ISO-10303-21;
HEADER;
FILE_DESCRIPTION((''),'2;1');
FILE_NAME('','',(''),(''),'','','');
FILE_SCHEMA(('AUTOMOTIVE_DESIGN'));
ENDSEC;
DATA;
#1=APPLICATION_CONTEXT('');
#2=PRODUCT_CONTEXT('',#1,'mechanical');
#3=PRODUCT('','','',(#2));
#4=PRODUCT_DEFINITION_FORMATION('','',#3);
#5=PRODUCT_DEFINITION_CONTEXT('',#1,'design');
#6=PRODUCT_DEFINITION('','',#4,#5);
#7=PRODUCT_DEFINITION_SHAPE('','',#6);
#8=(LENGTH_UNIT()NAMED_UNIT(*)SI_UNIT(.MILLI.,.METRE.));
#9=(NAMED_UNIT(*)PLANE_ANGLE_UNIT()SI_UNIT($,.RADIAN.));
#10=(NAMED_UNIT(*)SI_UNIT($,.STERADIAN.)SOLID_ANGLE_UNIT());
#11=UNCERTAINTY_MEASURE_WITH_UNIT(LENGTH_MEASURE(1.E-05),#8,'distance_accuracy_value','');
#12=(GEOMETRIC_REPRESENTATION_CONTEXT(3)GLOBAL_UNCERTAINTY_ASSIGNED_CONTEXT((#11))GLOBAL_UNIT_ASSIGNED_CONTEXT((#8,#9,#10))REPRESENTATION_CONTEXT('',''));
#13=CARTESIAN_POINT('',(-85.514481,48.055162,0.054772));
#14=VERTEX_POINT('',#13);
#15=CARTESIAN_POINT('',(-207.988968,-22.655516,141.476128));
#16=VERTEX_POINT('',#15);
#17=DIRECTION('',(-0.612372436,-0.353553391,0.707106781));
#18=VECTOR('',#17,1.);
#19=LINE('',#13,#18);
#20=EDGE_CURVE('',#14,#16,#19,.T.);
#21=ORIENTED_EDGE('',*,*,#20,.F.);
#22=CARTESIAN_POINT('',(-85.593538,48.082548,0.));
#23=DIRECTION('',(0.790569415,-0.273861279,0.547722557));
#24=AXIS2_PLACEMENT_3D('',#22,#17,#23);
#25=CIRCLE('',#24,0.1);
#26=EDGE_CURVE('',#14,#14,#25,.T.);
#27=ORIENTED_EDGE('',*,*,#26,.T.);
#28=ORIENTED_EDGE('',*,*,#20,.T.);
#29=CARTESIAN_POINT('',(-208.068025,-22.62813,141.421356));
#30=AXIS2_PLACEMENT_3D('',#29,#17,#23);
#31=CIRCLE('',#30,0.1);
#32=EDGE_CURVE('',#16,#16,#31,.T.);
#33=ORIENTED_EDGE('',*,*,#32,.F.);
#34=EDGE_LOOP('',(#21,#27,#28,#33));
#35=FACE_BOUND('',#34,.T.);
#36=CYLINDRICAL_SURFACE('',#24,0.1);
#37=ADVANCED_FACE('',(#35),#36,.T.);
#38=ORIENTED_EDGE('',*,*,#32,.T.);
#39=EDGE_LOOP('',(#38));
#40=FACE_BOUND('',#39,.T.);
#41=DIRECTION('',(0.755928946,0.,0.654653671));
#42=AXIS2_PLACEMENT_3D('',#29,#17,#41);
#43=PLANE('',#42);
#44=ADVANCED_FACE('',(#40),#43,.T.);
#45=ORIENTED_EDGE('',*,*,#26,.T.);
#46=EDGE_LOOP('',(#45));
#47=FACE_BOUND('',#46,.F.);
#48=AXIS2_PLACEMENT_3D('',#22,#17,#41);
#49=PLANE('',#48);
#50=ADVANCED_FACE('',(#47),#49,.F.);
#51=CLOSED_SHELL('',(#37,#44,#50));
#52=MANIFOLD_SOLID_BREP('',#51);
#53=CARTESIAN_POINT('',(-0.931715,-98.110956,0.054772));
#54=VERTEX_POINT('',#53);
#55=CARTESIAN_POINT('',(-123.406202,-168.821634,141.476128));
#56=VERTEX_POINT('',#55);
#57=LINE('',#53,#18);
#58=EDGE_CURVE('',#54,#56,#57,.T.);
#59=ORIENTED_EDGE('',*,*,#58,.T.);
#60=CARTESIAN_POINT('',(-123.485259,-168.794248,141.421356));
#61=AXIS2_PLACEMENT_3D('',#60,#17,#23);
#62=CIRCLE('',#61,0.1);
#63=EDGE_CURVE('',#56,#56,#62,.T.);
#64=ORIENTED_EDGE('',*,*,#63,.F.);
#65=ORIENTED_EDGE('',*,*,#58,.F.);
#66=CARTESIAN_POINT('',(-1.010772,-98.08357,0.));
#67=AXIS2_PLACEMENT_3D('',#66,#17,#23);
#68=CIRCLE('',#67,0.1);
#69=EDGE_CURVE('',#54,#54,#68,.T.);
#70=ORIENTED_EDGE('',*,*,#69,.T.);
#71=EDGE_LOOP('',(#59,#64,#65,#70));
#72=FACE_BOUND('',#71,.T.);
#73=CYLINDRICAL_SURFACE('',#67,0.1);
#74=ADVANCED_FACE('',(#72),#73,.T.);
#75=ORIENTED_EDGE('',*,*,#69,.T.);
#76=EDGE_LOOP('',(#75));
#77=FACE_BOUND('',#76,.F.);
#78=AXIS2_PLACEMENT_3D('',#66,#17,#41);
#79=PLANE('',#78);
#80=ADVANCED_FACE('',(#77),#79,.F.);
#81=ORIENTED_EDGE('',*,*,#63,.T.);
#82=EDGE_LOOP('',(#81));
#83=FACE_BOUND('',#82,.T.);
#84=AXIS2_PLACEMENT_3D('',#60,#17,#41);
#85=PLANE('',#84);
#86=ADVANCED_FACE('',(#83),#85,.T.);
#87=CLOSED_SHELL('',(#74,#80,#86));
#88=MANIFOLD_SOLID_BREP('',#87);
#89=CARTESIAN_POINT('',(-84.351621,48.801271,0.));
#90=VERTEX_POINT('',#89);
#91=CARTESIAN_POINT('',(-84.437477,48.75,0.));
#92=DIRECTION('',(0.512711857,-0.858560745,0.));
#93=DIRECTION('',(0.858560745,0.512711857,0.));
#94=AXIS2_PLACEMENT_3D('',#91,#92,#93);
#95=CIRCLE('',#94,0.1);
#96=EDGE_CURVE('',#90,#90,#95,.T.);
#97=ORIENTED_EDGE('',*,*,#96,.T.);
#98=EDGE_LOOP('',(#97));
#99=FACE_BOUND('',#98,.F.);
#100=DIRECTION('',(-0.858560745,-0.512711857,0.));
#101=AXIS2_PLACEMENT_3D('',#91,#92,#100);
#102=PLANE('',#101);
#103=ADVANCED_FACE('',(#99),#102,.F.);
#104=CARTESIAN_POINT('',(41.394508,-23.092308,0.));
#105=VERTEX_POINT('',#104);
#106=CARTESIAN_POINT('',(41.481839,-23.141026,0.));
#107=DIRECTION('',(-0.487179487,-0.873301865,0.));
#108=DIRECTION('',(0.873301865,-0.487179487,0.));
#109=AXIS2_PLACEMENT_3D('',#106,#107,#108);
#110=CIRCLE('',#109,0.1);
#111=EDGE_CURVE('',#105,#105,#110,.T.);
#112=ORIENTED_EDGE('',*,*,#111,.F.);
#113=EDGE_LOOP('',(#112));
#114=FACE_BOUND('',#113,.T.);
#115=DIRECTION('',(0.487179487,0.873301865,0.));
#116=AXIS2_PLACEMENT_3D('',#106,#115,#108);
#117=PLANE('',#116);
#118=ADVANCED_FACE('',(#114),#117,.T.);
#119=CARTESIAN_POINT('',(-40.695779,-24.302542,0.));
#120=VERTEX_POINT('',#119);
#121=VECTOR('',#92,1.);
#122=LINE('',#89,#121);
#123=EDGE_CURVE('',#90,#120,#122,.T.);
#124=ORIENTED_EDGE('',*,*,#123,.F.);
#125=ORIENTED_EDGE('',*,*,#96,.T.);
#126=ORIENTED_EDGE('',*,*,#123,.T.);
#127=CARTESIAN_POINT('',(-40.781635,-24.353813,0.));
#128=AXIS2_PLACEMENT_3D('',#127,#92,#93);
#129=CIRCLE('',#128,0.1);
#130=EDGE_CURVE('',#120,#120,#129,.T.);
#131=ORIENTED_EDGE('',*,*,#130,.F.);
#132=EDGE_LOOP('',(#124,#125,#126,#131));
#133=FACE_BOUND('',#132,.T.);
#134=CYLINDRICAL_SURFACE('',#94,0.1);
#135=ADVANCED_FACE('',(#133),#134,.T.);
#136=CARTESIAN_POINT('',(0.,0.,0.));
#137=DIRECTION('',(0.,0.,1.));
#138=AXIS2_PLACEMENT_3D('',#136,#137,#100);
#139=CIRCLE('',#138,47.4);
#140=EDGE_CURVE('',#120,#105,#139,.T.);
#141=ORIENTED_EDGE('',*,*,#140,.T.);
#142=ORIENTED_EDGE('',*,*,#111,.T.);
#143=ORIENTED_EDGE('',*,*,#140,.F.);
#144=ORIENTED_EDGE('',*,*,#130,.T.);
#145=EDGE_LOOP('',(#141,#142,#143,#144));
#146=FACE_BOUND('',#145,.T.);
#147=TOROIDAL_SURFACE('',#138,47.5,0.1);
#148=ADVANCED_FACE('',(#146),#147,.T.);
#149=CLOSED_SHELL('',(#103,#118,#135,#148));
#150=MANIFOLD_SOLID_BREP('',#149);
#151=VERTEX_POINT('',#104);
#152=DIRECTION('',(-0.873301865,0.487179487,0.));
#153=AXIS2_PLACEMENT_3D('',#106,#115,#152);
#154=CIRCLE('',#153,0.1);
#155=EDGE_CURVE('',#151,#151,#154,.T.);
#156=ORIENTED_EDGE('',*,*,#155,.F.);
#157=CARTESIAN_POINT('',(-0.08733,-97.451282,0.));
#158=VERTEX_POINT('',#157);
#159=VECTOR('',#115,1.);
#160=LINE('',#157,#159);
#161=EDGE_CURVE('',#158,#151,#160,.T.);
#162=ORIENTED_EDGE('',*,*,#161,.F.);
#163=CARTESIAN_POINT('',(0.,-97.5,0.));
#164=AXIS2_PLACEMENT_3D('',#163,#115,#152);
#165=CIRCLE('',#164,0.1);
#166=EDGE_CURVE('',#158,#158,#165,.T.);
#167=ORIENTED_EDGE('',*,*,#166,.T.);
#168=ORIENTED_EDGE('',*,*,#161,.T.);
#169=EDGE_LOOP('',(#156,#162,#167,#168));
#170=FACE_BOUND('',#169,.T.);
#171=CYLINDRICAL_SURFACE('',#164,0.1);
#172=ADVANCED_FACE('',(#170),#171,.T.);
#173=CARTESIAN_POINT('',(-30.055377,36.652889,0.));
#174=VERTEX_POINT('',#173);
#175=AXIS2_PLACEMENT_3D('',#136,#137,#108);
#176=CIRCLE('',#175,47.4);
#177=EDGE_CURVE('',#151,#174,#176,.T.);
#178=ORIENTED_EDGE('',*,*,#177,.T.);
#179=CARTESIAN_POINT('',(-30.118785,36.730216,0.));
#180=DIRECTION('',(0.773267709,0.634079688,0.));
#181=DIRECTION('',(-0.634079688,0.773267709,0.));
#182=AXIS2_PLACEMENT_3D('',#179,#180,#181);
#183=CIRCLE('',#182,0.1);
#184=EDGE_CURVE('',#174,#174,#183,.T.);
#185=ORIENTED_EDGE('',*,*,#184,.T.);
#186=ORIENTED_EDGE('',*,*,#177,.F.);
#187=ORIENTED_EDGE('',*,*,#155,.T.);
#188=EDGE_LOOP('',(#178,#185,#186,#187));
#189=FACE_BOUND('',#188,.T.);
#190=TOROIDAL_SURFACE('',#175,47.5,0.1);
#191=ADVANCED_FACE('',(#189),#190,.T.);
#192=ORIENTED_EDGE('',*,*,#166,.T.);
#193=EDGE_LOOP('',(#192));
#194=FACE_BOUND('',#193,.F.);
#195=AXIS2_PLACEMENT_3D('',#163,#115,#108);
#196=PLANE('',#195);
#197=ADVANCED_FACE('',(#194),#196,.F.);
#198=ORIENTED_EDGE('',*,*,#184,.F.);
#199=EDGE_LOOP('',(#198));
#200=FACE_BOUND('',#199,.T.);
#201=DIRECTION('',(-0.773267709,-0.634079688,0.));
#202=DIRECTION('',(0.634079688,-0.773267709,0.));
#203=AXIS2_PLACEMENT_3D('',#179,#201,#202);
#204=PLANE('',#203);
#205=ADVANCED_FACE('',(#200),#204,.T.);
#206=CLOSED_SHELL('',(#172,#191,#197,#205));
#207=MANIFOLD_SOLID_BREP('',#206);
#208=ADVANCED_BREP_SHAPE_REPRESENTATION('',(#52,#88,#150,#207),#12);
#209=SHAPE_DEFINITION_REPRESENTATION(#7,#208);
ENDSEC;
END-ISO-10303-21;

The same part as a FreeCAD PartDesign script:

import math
import FreeCAD as App
import Part
import Sketcher

doc = App.newDocument("Part")
body = doc.addObject("PartDesign::Body", "Body")

sketch1 = body.newObject("Sketcher::SketchObject", "Sketch")
sketch1.Placement = App.Placement(App.Vector(-144.089242, -83.189963, 166.379926), App.Rotation(App.Vector(0.790569415, -0.273861279, 0.547722557), App.Vector(0, 0.894427191, 0.447213596), App.Vector(-0.612372436, -0.353553391, 0.707106781), "ZXY"))
sketch1.addGeometry(Part.Circle(App.Vector(26.06, -87.73, 0), App.Vector(0, 0, 1), 0.1), False)
sketch1.addConstraint([
    Sketcher.Constraint("Diameter", 0, 0.2),
    Sketcher.Constraint("DistanceY", 0, 3, -1, 1, 87.728612),
    Sketcher.Constraint("DistanceX", -1, 1, 0, 3, 26.062206),
])

sketch2 = body.newObject("Sketcher::SketchObject", "Sketch001")
sketch2.Placement = App.Placement(App.Vector(-0.577584, 0, -0.500202), App.Rotation(App.Vector(-0.654653671, 0, 0.755928946), App.Vector(0, 1, 0), App.Vector(-0.755928946, 0, -0.654653671), "ZXY"))
sketch2.addGeometry(Part.LineSegment(App.Vector(1, -98, 0), App.Vector(188, -169, 0)), False)
sketch2.addConstraint([
    Sketcher.Constraint("Distance", 0, 200.0),
    Sketcher.Constraint("DistanceY", 0, 1, -1, 1, 98.08357),
    Sketcher.Constraint("DistanceX", 0, 1, 0, 2, 187.082869),
    Sketcher.Constraint("DistanceX", -1, 1, 0, 1, 0.661706),
])
doc.recompute()

additivepipe = body.newObject("PartDesign::AdditivePipe", "AdditivePipe")
additivepipe.Profile = sketch1
additivepipe.Spine = (sketch2, ["Edge1"])
body2 = doc.addObject("PartDesign::Body", "Body001")

sketch3 = body2.newObject("Sketcher::SketchObject", "Sketch002")
sketch3.Placement = App.Placement(App.Vector(-144.161887, -83.231904, 166.463808), App.Rotation(App.Vector(0.790569415, -0.273861279, 0.547722557), App.Vector(0, 0.894427191, 0.447213596), App.Vector(-0.612372436, -0.353553391, 0.707106781), "ZXY"))
sketch3.addGeometry(Part.Circle(App.Vector(-80.84, 43.01, 0), App.Vector(0, 0, 1), 0.1), False)
sketch3.addConstraint([
    Sketcher.Constraint("Diameter", 0, 0.2),
    Sketcher.Constraint("DistanceX", 0, 3, -1, 1, 80.835581),
    Sketcher.Constraint("DistanceY", -1, 1, 0, 3, 43.006338),
])

sketch4 = body2.newObject("Sketcher::SketchObject", "Sketch003")
sketch4.Placement = App.Placement(App.Vector(-48.910593, 0, -42.357816), App.Rotation(App.Vector(-0.654653671, 0, 0.755928946), App.Vector(0, 1, 0), App.Vector(-0.755928946, 0, -0.654653671), "ZXY"))
sketch4.addGeometry(Part.LineSegment(App.Vector(56, 48, 0), App.Vector(243, -23, 0)), False)
sketch4.addConstraint([
    Sketcher.Constraint("Distance", 0, 200.0),
    Sketcher.Constraint("DistanceY", -1, 1, 0, 1, 48.082548),
    Sketcher.Constraint("DistanceY", 0, 2, -1, 1, 22.62813),
    Sketcher.Constraint("DistanceX", -1, 1, 0, 1, 56.034124),
])
doc.recompute()

additivepipe2 = body2.newObject("PartDesign::AdditivePipe", "AdditivePipe001")
additivepipe2.Profile = sketch3
additivepipe2.Spine = (sketch4, ["Edge1"])
body3 = doc.addObject("PartDesign::Body", "Body002")

sketch5 = body3.newObject("Sketcher::SketchObject", "Sketch004")
sketch5.Placement = App.Placement(App.Vector(0, 0, 0), App.Rotation(App.Vector(0.858560745, 0.512711857, 0), App.Vector(0, 0, 1.000000001), App.Vector(0.512711857, -0.858560745, 0), "ZXY"))
sketch5.addGeometry(Part.Circle(App.Vector(-47.5, 0, 0), App.Vector(0, 0, 1), 0.1), False)
sketch5.addConstraint([
    Sketcher.Constraint("PointOnObject", 0, 3, -1),
    Sketcher.Constraint("Diameter", 0, 0.2),
    Sketcher.Constraint("DistanceX", 0, 3, -1, 1, 47.5),
])

sketch6 = body3.newObject("Sketcher::SketchObject", "Sketch005")
sketch6.AttachmentSupport = (doc.getObject("XY_Plane002"), [""])
sketch6.MapMode = "FlatFace"
sketch6.addGeometry([
    Part.LineSegment(App.Vector(-84, 49, 0), App.Vector(-41, -24, 0)),
    Part.ArcOfCircle(Part.Circle(App.Vector(0, 0, 0), App.Vector(0, 0, 1), 48), math.radians(-149), math.radians(-29)),
], False)
sketch6.addConstraint([
    Sketcher.Constraint("Tangent", 0, 2, 1, 1),
    Sketcher.Constraint("Coincident", 1, 3, -1, 1),
    Sketcher.Constraint("Radius", 1, 47.5),
    Sketcher.Constraint("DistanceY", -1, 1, 0, 1, 48.75),
    Sketcher.Constraint("Distance", 0, 85.146932),
    Sketcher.Constraint("DistanceX", -1, 1, 1, 2, 41.481839),
])
doc.recompute()

additivepipe3 = body3.newObject("PartDesign::AdditivePipe", "AdditivePipe002")
additivepipe3.Profile = sketch5
additivepipe3.Spine = (sketch6, ["Edge1", "Edge2"])
body4 = doc.addObject("PartDesign::Body", "Body003")

sketch7 = body4.newObject("Sketcher::SketchObject", "Sketch006")
sketch7.Placement = App.Placement(App.Vector(0, 0, 0), App.Rotation(App.Vector(-0.873301865, 0.487179487, 0), App.Vector(0, 0, 1), App.Vector(0.487179487, 0.873301865, 0), "ZXY"))
sketch7.addGeometry(Part.Circle(App.Vector(-47.5, 0, 0), App.Vector(0, 0, 1), 0.1), False)
sketch7.addConstraint([
    Sketcher.Constraint("PointOnObject", 0, 3, -1),
    Sketcher.Constraint("Diameter", 0, 0.2),
    Sketcher.Constraint("DistanceX", 0, 3, -1, 1, 47.5),
])

sketch8 = body4.newObject("Sketcher::SketchObject", "Sketch007")
sketch8.AttachmentSupport = (doc.getObject("XY_Plane003"), [""])
sketch8.MapMode = "FlatFace"
sketch8.addGeometry([
    Part.LineSegment(App.Vector(0, -98, 0), App.Vector(41, -23, 0)),
    Part.ArcOfCircle(Part.Circle(App.Vector(0, 0, 0), App.Vector(0, 0, 1), 48), math.radians(-29), math.radians(129)),
], False)
sketch8.addConstraint([
    Sketcher.Constraint("Tangent", 0, 2, 1, 1),
    Sketcher.Constraint("Coincident", 1, 3, -1, 1),
    Sketcher.Constraint("PointOnObject", 0, 1, -2),
    Sketcher.Constraint("Radius", 1, 47.5),
    Sketcher.Constraint("DistanceY", 0, 1, -1, 1, 97.5),
    Sketcher.Constraint("DistanceY", 0, 2, 1, 2, 59.871242),
])
doc.recompute()

additivepipe4 = body4.newObject("PartDesign::AdditivePipe", "AdditivePipe003")
additivepipe4.Profile = sketch7
additivepipe4.Spine = (sketch8, ["Edge1", "Edge2"])

doc.recompute()
